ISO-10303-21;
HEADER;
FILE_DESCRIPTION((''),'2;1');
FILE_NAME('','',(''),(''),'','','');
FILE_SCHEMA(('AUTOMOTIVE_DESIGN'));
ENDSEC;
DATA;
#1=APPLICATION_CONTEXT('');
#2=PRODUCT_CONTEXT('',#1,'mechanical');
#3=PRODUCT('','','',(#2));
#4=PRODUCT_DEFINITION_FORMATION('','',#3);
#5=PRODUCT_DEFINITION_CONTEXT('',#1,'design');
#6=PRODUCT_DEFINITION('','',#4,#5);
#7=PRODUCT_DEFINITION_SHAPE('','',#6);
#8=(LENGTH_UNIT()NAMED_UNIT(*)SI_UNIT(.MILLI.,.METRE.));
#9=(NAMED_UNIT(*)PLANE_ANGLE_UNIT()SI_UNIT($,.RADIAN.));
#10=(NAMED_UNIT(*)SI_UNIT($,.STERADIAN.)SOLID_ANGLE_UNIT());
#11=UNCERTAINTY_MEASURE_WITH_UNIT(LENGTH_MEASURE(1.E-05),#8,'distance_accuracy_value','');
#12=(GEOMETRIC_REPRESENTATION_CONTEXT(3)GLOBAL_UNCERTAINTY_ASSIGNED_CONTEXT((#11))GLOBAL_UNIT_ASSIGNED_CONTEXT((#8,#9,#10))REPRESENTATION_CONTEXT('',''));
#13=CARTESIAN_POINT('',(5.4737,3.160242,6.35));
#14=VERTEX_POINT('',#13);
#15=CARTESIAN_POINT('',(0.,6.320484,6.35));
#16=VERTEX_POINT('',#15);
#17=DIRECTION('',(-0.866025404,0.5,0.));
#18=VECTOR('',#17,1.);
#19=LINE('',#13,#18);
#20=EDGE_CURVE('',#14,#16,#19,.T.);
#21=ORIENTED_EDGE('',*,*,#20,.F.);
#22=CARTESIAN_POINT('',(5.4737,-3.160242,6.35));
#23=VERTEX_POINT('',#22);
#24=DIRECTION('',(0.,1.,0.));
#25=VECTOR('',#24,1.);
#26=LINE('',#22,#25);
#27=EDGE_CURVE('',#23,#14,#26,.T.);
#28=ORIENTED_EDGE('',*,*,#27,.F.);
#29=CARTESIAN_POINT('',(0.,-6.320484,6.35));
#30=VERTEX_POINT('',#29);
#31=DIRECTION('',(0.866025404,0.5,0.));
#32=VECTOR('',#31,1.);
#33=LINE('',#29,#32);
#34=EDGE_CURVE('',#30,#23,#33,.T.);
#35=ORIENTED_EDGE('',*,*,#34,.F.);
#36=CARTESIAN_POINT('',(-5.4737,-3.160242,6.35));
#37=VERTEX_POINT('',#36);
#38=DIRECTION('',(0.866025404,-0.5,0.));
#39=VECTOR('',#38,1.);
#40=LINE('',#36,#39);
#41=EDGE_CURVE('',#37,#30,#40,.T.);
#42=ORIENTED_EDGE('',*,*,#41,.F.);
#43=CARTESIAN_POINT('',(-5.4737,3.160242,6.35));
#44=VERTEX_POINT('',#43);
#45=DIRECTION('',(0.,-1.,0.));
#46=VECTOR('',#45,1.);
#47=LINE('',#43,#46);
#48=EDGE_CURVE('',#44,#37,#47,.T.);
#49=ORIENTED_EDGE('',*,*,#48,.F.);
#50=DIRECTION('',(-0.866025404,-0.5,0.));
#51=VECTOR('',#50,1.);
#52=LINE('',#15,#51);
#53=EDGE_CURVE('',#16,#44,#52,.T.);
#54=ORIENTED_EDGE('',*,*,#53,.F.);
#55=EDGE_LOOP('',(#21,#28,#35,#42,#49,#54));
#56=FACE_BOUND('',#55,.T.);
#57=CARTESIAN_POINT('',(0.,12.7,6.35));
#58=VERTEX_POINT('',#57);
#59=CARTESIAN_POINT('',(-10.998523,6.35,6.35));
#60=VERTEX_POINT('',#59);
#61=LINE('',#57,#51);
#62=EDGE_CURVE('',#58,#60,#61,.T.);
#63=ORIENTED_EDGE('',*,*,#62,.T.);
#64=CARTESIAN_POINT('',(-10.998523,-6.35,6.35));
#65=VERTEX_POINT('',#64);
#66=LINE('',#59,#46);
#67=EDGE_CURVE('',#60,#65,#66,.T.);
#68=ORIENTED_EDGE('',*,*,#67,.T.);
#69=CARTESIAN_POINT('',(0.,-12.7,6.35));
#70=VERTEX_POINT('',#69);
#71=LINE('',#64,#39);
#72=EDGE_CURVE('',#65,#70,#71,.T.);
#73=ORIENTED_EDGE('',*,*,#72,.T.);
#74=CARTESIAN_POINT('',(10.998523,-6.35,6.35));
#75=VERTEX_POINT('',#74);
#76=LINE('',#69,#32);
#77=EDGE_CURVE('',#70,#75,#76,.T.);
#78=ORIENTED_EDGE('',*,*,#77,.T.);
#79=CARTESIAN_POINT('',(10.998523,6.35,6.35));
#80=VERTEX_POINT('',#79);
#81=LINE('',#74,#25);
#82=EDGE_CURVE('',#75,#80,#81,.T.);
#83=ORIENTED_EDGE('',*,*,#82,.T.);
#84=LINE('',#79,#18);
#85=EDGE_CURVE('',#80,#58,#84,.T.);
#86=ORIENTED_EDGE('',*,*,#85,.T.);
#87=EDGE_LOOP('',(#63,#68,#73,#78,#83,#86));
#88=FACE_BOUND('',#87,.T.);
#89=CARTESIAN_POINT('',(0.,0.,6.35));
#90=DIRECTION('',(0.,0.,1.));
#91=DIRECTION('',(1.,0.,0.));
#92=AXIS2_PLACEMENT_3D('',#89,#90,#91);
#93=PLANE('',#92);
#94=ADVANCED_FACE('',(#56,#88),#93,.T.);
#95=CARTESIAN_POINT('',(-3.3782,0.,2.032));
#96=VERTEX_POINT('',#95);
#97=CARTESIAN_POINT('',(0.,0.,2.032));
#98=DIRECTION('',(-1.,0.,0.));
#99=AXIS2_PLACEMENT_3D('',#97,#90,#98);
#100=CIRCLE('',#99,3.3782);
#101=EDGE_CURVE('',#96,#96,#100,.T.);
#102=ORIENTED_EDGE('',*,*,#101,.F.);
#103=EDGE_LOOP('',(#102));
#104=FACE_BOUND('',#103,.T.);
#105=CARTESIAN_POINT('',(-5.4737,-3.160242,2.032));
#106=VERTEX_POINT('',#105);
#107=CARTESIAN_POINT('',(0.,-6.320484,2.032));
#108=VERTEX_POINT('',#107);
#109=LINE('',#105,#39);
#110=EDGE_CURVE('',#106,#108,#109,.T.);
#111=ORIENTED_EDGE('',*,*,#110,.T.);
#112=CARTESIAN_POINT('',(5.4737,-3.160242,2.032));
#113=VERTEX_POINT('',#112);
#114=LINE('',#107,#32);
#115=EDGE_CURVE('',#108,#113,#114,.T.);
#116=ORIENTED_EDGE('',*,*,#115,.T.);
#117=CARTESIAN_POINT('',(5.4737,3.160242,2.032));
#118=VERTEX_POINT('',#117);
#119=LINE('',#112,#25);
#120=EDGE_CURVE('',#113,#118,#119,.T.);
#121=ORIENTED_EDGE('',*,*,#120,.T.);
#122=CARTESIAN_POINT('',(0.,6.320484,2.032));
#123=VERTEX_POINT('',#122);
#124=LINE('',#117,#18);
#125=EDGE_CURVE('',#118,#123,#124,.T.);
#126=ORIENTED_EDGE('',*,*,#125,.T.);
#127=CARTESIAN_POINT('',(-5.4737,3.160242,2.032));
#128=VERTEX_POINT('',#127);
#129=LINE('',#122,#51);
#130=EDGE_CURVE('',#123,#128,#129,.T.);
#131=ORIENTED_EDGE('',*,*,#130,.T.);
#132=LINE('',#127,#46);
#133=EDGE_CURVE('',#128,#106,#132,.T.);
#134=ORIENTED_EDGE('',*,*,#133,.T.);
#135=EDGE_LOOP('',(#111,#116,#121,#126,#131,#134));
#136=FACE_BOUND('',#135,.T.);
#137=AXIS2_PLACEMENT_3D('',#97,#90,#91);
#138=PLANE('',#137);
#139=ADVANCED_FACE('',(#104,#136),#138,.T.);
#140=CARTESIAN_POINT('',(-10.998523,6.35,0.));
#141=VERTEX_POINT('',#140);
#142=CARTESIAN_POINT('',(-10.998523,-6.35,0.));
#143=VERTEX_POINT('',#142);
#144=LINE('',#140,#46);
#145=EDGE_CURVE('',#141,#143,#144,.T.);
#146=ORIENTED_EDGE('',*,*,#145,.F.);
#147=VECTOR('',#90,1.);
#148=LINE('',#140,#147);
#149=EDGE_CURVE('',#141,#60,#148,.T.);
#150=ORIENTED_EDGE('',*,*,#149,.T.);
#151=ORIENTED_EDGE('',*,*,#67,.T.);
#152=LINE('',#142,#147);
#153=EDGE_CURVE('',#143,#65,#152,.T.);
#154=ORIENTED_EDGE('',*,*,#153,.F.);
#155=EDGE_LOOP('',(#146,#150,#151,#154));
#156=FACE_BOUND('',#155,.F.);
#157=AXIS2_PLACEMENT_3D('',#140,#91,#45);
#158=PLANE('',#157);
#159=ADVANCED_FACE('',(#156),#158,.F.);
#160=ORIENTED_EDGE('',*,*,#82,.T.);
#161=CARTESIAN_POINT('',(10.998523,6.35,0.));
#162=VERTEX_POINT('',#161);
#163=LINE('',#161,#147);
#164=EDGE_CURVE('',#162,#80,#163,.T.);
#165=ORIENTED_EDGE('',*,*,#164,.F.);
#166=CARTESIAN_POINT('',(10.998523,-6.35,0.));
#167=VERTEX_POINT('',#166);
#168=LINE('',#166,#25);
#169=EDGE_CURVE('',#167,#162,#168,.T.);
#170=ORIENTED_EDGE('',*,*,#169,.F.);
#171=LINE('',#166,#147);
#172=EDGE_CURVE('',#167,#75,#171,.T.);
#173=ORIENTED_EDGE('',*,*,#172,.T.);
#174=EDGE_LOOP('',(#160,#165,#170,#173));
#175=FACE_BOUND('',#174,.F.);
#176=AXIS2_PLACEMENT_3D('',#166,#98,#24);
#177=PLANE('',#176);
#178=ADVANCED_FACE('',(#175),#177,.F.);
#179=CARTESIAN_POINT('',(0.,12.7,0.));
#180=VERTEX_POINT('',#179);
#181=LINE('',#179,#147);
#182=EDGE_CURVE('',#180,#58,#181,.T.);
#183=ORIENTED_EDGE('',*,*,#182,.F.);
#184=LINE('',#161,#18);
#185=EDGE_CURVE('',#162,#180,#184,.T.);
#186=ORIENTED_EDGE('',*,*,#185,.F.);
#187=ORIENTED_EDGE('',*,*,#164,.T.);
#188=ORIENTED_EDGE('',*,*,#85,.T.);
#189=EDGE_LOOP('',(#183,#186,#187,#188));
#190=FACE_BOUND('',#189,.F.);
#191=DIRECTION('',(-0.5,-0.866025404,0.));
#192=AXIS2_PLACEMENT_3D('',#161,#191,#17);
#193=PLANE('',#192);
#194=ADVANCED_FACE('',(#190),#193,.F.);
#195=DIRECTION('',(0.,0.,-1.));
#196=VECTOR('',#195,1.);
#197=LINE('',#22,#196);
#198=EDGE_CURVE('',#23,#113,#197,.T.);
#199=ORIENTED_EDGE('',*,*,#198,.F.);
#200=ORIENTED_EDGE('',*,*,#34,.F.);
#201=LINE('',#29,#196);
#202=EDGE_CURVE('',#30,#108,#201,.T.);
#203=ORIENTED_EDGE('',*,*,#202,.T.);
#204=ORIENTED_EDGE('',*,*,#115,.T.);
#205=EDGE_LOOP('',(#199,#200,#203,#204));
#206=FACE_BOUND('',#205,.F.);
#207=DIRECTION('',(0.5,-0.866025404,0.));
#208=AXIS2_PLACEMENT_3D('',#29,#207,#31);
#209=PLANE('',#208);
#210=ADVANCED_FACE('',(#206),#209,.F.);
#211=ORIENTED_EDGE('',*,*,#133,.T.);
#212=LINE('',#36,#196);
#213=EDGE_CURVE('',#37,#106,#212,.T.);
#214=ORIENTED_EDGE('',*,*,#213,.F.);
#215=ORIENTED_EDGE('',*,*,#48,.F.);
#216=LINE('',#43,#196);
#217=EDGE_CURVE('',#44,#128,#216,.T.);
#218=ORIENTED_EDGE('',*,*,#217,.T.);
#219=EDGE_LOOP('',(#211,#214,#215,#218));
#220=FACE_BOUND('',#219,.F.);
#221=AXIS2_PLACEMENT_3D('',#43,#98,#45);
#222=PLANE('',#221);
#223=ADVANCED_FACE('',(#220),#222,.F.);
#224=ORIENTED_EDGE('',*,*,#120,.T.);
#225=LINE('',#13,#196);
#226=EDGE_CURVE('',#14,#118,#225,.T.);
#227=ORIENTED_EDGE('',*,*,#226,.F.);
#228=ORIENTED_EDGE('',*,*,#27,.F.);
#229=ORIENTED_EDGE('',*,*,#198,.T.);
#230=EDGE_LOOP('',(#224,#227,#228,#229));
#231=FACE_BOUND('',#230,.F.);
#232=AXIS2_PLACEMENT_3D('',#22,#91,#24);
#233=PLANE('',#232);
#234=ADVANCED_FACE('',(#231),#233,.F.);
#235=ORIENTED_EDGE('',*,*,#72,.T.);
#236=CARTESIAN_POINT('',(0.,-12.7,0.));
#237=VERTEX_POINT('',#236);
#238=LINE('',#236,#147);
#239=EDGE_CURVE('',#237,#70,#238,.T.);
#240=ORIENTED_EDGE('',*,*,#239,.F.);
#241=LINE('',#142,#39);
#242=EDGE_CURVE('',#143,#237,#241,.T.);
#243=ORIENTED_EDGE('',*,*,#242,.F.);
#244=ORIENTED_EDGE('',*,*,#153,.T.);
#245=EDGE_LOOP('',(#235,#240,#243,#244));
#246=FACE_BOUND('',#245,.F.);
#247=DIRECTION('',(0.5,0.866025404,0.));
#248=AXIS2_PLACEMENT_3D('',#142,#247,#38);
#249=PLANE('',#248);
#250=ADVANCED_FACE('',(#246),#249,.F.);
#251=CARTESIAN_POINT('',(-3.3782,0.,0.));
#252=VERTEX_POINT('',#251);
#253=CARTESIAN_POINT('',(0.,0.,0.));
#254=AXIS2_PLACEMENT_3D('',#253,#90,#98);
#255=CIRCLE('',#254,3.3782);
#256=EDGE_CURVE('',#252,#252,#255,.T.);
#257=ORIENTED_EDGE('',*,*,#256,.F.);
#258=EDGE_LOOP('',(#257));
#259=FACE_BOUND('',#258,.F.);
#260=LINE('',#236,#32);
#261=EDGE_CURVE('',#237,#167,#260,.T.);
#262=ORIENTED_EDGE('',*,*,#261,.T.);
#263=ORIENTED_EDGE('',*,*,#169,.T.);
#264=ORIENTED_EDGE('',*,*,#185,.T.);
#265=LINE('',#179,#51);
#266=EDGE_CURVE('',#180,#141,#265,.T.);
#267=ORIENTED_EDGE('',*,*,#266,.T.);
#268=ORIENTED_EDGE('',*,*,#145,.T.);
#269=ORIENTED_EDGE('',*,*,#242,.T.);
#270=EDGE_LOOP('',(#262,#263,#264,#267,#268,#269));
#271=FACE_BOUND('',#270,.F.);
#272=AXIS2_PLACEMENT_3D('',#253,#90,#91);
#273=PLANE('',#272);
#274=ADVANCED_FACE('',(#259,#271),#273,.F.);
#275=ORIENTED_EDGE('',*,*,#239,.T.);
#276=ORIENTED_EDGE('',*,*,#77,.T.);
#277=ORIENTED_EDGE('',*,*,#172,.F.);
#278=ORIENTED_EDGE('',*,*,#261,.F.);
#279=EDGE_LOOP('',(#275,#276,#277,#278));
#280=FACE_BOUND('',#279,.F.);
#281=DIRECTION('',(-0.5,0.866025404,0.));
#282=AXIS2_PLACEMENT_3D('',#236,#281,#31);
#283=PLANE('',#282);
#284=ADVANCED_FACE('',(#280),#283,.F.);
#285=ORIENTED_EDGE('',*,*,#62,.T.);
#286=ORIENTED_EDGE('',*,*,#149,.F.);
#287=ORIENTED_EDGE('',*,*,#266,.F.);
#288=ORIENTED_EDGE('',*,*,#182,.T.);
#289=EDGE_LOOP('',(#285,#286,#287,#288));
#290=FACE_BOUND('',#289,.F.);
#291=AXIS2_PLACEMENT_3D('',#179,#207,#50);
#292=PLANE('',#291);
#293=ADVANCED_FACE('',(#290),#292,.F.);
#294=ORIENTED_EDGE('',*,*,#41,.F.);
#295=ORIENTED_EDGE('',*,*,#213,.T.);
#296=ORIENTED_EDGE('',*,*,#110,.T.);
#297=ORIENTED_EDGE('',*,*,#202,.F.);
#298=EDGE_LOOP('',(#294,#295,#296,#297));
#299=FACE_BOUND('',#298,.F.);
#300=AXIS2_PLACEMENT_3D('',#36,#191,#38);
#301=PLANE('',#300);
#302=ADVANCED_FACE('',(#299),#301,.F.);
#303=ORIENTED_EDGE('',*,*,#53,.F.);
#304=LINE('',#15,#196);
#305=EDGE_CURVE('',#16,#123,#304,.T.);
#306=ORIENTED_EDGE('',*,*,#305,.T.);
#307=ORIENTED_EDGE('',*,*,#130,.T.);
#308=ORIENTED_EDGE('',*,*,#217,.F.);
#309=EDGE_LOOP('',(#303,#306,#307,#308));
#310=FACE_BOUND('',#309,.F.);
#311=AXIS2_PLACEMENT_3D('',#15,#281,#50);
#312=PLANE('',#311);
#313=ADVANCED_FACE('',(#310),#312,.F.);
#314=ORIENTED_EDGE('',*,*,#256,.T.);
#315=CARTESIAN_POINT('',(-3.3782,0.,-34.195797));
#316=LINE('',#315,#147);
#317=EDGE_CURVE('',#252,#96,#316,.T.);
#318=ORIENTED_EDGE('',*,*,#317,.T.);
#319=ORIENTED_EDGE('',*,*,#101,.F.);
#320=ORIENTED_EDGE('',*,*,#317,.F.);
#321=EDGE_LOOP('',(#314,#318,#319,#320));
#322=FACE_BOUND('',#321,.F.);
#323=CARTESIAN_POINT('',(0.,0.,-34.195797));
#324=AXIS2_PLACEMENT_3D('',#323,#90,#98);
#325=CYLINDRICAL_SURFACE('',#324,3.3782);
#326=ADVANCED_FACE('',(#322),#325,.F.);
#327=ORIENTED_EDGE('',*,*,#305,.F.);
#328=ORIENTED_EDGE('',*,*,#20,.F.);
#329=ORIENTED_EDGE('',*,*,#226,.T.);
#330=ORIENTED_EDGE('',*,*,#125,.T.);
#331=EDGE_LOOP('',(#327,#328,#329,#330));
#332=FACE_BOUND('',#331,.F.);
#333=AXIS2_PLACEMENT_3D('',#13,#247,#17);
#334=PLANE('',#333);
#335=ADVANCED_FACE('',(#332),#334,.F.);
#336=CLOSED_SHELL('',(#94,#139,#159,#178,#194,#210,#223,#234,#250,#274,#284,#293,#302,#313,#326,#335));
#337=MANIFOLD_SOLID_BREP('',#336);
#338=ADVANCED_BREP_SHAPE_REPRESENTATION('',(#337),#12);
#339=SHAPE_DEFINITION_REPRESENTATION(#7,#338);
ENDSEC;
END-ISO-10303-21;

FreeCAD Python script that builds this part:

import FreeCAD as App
import Part
import Sketcher
Q = App.Units.Quantity

doc = App.newDocument("Part")
params = doc.addObject("Spreadsheet::Sheet", "Params")
for row, (alias, value) in enumerate([
    ("sketch1_height", "0.5 in"),
    ("pad1_length", "0.25 in"),
    ("pocket1_length", "0.17 in"),
    ("sketch3_diameter", "0.266 in"),
    ("hole_diameter", "0.266 in"),
], start=1):
    params.set(f"A{row}", alias)
    params.set(f"B{row}", "=" + value)
    params.setAlias(f"B{row}", alias)

body = doc.addObject("PartDesign::Body", "Body")

sketch1 = body.newObject("Sketcher::SketchObject", "Sketch")
sketch1.AttachmentSupport = (doc.getObject("XY_Plane"), [""])
sketch1.MapMode = "FlatFace"
sketch1.addGeometry([
    Part.LineSegment(App.Vector(0, -12.7, 0), App.Vector(10.998523, -6.35, 0)),
    Part.LineSegment(App.Vector(10.998523, -6.35, 0), App.Vector(10.998523, 6.35, 0)),
    Part.LineSegment(App.Vector(10.998523, 6.35, 0), App.Vector(0, 12.7, 0)),
    Part.LineSegment(App.Vector(0, 12.7, 0), App.Vector(-10.998523, 6.35, 0)),
    Part.LineSegment(App.Vector(-10.998523, 6.35, 0), App.Vector(-10.998523, -6.35, 0)),
    Part.LineSegment(App.Vector(-10.998523, -6.35, 0), App.Vector(0, -12.7, 0)),
], False)
sketch1.addConstraint([
    Sketcher.Constraint("Coincident", 0, 2, 1, 1),
    Sketcher.Constraint("Coincident", 1, 2, 2, 1),
    Sketcher.Constraint("Coincident", 2, 2, 3, 1),
    Sketcher.Constraint("Coincident", 3, 2, 4, 1),
    Sketcher.Constraint("Coincident", 4, 2, 5, 1),
    Sketcher.Constraint("Coincident", 5, 2, 0, 1),
    Sketcher.Constraint("Vertical", 1),
    Sketcher.Constraint("Vertical", 4),
    Sketcher.Constraint("Symmetric", 0, 2, 3, 2, -1, 1),
    Sketcher.Constraint("Symmetric", 2, 2, 5, 2, -1, 1),
    Sketcher.Constraint("PointOnObject", 2, 2, -2),
    Sketcher.Constraint("Parallel", 2, 5),
    Sketcher.Constraint("Horizontal", 1, 2, 3, 2),
    Sketcher.Constraint("DistanceY", 1, 1, 1, 2, Q("0.5 in")),
    Sketcher.Constraint("Angle", 0, Q("30 deg")),
    Sketcher.Constraint("DistanceY", 5, 2, 2, 2, Q("1 in")),
])
sketch1.setExpression("Constraints[13]", "Params.sketch1_height")
pad1 = body.newObject("PartDesign::Pad", "Pad")
pad1.Profile = sketch1
pad1.setExpression("Length", "Params.pad1_length")

sketch2 = body.newObject("Sketcher::SketchObject", "Sketch001")
sketch2.AttachmentSupport = (doc.getObject("XY_Plane"), [""])
sketch2.MapMode = "FlatFace"
sketch2.AttachmentOffset = App.Placement(App.Vector(0, 0, 0.25 * 25.4), App.Rotation())
sketch2.addGeometry([
    Part.LineSegment(App.Vector(0, 6.320484, 0), App.Vector(-5.4737, 3.160242, 0)),
    Part.LineSegment(App.Vector(-5.4737, 3.160242, 0), App.Vector(-5.4737, -3.160242, 0)),
    Part.LineSegment(App.Vector(-5.4737, -3.160242, 0), App.Vector(0, -6.320484, 0)),
    Part.LineSegment(App.Vector(0, -6.320484, 0), App.Vector(5.4737, -3.160242, 0)),
    Part.LineSegment(App.Vector(5.4737, -3.160242, 0), App.Vector(5.4737, 3.160242, 0)),
    Part.LineSegment(App.Vector(5.4737, 3.160242, 0), App.Vector(0, 6.320484, 0)),
], False)
sketch2.addConstraint([
    Sketcher.Constraint("Coincident", 0, 2, 1, 1),
    Sketcher.Constraint("Coincident", 1, 2, 2, 1),
    Sketcher.Constraint("Coincident", 2, 2, 3, 1),
    Sketcher.Constraint("Coincident", 3, 2, 4, 1),
    Sketcher.Constraint("Coincident", 4, 2, 5, 1),
    Sketcher.Constraint("Coincident", 5, 2, 0, 1),
    Sketcher.Constraint("Vertical", 1),
    Sketcher.Constraint("Vertical", 4),
    Sketcher.Constraint("Symmetric", 0, 2, 3, 2, -1, 1),
    Sketcher.Constraint("Symmetric", 2, 2, 5, 2, -1, 1),
    Sketcher.Constraint("PointOnObject", 2, 2, -2),
    Sketcher.Constraint("Parallel", 2, 5),
    Sketcher.Constraint("Horizontal", 1, 2, 3, 2),
    Sketcher.Constraint("Angle", 0, Q("-150 deg")),
    Sketcher.Constraint("DistanceX", 1, 2, 3, 2, Q("0.431 in")),
    Sketcher.Constraint("DistanceY", 1, 2, 1, 1, 6.320484),
])
pocket1 = body.newObject("PartDesign::Pocket", "Pocket")
pocket1.Profile = sketch2
pocket1.setExpression("Length", "Params.pocket1_length")

sketch3 = body.newObject("Sketcher::SketchObject", "Sketch002")
sketch3.AttachmentSupport = (doc.getObject("XY_Plane"), [""])
sketch3.MapMode = "FlatFace"
sketch3.addGeometry(Part.Circle(App.Vector(0, 0, 0), App.Vector(0, 0, 1), 3.3782), False)
sketch3.addConstraint([
    Sketcher.Constraint("Coincident", 0, 3, -1, 1),
    Sketcher.Constraint("Diameter", 0, Q("0.266 in")),
])
sketch3.setExpression("Constraints[1]", "Params.sketch3_diameter")
doc.recompute()
hole = body.newObject("PartDesign::Hole", "Hole")
hole.Profile = sketch3
hole.ThreadType = "None"
hole.setExpression("Diameter", "Params.hole_diameter")
hole.DepthType = "ThroughAll"
hole.Reversed = True

doc.recompute()
